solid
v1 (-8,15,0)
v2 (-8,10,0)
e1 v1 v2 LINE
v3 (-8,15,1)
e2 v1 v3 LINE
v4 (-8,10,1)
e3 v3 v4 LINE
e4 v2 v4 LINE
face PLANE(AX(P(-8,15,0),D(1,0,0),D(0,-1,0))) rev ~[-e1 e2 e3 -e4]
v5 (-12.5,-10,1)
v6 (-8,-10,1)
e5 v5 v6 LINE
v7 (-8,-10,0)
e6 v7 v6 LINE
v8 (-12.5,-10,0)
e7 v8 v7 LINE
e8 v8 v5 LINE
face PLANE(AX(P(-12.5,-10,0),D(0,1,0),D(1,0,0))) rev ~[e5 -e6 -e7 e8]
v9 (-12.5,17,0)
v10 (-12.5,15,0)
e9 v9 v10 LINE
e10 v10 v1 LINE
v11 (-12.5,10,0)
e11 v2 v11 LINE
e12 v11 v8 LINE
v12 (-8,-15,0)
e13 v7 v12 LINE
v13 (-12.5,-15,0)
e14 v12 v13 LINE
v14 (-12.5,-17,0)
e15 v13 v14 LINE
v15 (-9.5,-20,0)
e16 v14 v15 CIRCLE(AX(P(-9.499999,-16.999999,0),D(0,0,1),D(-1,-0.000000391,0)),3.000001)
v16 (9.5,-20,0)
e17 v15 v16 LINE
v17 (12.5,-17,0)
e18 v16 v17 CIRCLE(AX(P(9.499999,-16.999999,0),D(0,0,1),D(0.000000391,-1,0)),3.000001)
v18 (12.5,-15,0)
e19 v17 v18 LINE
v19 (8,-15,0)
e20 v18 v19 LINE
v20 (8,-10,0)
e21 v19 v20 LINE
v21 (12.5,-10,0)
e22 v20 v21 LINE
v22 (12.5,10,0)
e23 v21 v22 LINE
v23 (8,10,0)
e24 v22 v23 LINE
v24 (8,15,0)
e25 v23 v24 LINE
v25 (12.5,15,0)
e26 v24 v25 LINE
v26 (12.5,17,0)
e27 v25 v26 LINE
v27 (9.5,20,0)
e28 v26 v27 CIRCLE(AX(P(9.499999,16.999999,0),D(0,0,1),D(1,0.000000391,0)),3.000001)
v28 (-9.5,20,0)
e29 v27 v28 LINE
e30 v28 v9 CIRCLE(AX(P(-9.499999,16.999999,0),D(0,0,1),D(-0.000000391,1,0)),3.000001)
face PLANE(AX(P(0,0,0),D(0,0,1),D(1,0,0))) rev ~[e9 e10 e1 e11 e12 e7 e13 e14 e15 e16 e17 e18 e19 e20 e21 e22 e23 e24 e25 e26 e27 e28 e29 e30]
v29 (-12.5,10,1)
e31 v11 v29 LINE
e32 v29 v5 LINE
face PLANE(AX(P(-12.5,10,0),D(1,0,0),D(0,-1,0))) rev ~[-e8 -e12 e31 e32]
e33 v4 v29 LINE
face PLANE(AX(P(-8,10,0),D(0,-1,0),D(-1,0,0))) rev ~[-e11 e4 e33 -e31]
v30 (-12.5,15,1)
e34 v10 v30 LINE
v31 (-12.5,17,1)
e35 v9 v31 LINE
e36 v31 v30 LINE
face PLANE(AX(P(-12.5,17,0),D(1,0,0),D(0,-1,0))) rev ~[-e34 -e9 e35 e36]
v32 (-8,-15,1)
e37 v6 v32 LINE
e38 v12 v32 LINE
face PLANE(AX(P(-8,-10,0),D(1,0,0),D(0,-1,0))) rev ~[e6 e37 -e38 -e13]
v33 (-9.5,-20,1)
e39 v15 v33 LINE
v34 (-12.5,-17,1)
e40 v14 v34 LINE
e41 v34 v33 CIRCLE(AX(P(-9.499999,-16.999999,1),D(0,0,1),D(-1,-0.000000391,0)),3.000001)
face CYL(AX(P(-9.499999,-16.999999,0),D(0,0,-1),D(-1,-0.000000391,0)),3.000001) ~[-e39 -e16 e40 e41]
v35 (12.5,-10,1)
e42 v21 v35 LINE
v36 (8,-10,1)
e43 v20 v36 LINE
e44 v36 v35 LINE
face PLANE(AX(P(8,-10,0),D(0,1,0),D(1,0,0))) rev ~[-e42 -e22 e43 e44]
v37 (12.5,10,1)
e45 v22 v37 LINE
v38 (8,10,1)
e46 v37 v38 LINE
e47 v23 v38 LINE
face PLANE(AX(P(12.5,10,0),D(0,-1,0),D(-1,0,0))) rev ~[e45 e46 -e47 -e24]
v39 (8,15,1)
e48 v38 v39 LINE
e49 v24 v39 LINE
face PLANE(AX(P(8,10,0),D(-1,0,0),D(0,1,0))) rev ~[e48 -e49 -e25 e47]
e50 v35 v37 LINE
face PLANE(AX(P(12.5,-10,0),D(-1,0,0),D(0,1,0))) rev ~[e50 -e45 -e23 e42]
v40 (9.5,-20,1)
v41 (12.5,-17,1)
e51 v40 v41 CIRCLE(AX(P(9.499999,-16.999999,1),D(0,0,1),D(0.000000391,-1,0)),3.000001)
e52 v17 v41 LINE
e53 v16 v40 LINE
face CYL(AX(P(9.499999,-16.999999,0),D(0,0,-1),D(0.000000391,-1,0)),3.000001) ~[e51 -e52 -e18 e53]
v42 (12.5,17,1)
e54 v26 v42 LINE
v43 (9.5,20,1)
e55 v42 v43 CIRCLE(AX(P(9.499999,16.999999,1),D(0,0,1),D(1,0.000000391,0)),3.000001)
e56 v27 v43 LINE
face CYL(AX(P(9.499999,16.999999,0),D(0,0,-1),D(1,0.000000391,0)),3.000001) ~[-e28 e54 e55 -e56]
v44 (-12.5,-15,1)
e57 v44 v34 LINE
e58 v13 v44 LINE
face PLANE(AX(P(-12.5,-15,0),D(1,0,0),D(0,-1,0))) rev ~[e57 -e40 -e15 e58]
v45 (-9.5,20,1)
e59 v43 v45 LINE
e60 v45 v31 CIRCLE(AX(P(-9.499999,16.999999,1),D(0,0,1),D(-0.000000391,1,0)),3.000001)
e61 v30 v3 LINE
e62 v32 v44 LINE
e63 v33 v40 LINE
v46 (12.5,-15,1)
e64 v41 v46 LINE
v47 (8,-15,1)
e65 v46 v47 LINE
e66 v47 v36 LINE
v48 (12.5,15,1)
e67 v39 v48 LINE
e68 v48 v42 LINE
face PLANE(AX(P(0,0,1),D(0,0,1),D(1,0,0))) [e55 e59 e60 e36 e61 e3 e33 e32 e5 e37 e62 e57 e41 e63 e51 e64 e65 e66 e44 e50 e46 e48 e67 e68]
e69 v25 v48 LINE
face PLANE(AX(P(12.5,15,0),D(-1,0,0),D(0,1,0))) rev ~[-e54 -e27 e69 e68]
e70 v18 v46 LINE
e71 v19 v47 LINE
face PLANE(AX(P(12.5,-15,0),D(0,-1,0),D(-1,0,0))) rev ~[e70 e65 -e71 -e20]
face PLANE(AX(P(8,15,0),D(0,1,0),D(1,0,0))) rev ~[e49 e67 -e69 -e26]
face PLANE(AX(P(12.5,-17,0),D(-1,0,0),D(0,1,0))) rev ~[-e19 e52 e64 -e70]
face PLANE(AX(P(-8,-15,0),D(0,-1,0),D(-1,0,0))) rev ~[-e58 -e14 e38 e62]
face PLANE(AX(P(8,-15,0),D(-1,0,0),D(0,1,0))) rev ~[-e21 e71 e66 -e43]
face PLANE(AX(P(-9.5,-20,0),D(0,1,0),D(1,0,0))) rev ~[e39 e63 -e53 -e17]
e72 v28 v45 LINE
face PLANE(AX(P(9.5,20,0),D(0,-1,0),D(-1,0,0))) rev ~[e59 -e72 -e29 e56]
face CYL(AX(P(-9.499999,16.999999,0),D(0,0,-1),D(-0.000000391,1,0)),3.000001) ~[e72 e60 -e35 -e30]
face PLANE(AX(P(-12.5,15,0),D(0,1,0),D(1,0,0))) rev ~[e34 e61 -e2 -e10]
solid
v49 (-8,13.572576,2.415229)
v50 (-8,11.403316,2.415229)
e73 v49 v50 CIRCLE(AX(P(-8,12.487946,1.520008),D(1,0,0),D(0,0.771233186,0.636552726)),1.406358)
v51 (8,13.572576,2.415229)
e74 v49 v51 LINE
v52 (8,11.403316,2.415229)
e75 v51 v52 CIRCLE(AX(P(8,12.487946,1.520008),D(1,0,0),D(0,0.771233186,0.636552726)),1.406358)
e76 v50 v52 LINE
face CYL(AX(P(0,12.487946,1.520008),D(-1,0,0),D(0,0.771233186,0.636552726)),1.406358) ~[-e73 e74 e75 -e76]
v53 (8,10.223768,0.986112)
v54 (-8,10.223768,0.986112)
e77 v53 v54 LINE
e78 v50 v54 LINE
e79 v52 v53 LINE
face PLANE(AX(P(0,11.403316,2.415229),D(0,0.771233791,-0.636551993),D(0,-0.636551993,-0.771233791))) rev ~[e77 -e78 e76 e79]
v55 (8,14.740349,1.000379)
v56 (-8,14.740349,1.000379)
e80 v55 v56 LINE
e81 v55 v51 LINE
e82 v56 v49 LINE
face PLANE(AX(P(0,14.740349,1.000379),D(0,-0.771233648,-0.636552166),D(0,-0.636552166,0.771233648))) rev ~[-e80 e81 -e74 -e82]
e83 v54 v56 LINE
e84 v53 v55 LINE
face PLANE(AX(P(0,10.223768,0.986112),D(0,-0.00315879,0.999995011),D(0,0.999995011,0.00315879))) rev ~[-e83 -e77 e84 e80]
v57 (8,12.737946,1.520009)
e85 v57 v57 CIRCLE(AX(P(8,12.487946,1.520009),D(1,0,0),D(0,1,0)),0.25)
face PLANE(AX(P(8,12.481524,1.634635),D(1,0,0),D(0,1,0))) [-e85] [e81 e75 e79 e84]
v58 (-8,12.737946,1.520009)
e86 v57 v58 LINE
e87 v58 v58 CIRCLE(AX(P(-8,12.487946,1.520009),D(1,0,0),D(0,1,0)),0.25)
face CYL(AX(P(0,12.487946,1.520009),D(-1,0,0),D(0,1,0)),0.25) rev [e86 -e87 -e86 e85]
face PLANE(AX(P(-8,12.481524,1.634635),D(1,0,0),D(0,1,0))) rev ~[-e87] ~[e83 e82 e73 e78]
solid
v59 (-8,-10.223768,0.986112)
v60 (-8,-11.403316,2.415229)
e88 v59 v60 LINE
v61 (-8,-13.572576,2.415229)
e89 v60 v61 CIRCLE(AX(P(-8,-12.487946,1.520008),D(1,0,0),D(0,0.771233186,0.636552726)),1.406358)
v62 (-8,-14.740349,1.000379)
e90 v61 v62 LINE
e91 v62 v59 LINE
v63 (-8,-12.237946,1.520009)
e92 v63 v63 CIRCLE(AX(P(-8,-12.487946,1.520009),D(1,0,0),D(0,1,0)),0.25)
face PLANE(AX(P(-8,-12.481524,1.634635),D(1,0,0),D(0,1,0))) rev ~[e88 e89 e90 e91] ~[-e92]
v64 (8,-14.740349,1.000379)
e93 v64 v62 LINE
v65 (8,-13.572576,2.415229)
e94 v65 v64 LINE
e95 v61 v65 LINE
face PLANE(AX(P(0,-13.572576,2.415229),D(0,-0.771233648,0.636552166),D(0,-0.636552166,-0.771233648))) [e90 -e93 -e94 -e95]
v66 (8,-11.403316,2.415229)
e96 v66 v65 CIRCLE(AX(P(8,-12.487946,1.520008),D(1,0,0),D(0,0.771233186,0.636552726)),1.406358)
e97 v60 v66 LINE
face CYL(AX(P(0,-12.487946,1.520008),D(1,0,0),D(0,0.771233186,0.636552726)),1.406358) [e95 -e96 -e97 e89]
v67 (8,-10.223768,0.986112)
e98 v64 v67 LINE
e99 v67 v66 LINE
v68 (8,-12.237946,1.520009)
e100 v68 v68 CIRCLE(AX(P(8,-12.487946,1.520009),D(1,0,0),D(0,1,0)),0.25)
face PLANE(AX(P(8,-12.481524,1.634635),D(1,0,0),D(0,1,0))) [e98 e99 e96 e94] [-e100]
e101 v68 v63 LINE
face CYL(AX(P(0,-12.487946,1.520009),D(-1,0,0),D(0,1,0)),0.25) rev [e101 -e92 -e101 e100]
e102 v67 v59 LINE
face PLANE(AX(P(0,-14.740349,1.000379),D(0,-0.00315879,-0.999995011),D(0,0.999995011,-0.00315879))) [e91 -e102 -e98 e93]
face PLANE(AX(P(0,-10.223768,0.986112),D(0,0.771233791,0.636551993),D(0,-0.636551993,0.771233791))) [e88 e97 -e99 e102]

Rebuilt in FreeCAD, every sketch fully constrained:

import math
import FreeCAD as App
import Part
import Sketcher

doc = App.newDocument("Part")
body = doc.addObject("PartDesign::Body", "Body")

sketch1 = body.newObject("Sketcher::SketchObject", "Sketch")
sketch1.AttachmentSupport = (doc.getObject("XY_Plane"), [""])
sketch1.MapMode = "FlatFace"
sketch1.addGeometry(Part.ArcOfCircle(Part.Circle(App.Vector(9.5, 17, 0), App.Vector(0, 0, 1), 3), math.radians(0), math.radians(90)), False)
sketch1.addGeometry(Part.LineSegment(App.Vector(9.5, 20, 0), App.Vector(-9.5, 20, 0)), False)
sketch1.addGeometry(Part.ArcOfCircle(Part.Circle(App.Vector(-9.5, 17, 0), App.Vector(0, 0, 1), 3), math.radians(90), math.radians(180)), False)
sketch1.addGeometry(Part.LineSegment(App.Vector(-12.5, 17, 0), App.Vector(-12.5, 15, 0)), False)
sketch1.addGeometry(Part.LineSegment(App.Vector(-12.5, 15, 0), App.Vector(-8, 15, 0)), False)
sketch1.addGeometry(Part.LineSegment(App.Vector(-8, 15, 0), App.Vector(-8, 10, 0)), False)
sketch1.addGeometry(Part.LineSegment(App.Vector(-8, 10, 0), App.Vector(-12.5, 10, 0)), False)
sketch1.addGeometry(Part.LineSegment(App.Vector(-12.5, 10, 0), App.Vector(-12.5, -10, 0)), False)
sketch1.addGeometry(Part.LineSegment(App.Vector(-12.5, -10, 0), App.Vector(-8, -10, 0)), False)
sketch1.addGeometry(Part.LineSegment(App.Vector(-8, -10, 0), App.Vector(-8, -15, 0)), False)
sketch1.addGeometry(Part.LineSegment(App.Vector(-8, -15, 0), App.Vector(-12.5, -15, 0)), False)
sketch1.addGeometry(Part.LineSegment(App.Vector(-12.5, -15, 0), App.Vector(-12.5, -17, 0)), False)
sketch1.addGeometry(Part.ArcOfCircle(Part.Circle(App.Vector(-9.5, -17, 0), App.Vector(0, 0, 1), 3), math.radians(-180), math.radians(-90)), False)
sketch1.addGeometry(Part.LineSegment(App.Vector(-9.5, -20, 0), App.Vector(9.5, -20, 0)), False)
sketch1.addGeometry(Part.ArcOfCircle(Part.Circle(App.Vector(9.5, -17, 0), App.Vector(0, 0, 1), 3), math.radians(-90), math.radians(0)), False)
sketch1.addGeometry(Part.LineSegment(App.Vector(12.5, -17, 0), App.Vector(12.5, -15, 0)), False)
sketch1.addGeometry(Part.LineSegment(App.Vector(12.5, -15, 0), App.Vector(8, -15, 0)), False)
sketch1.addGeometry(Part.LineSegment(App.Vector(8, -15, 0), App.Vector(8, -10, 0)), False)
sketch1.addGeometry(Part.LineSegment(App.Vector(8, -10, 0), App.Vector(12.5, -10, 0)), False)
sketch1.addGeometry(Part.LineSegment(App.Vector(12.5, -10, 0), App.Vector(12.5, 10, 0)), False)
sketch1.addGeometry(Part.LineSegment(App.Vector(12.5, 10, 0), App.Vector(8, 10, 0)), False)
sketch1.addGeometry(Part.LineSegment(App.Vector(8, 10, 0), App.Vector(8, 15, 0)), False)
sketch1.addGeometry(Part.LineSegment(App.Vector(8, 15, 0), App.Vector(12.5, 15, 0)), False)
sketch1.addGeometry(Part.LineSegment(App.Vector(12.5, 15, 0), App.Vector(12.5, 17, 0)), False)
sketch1.addConstraint(Sketcher.Constraint("Tangent", 0, 2, 1, 1))
sketch1.addConstraint(Sketcher.Constraint("Tangent", 1, 2, 2, 1))
sketch1.addConstraint(Sketcher.Constraint("Tangent", 2, 2, 3, 1))
sketch1.addConstraint(Sketcher.Constraint("Coincident", 3, 2, 4, 1))
sketch1.addConstraint(Sketcher.Constraint("Coincident", 4, 2, 5, 1))
sketch1.addConstraint(Sketcher.Constraint("Coincident", 5, 2, 6, 1))
sketch1.addConstraint(Sketcher.Constraint("Coincident", 6, 2, 7, 1))
sketch1.addConstraint(Sketcher.Constraint("Coincident", 7, 2, 8, 1))
sketch1.addConstraint(Sketcher.Constraint("Coincident", 8, 2, 9, 1))
sketch1.addConstraint(Sketcher.Constraint("Coincident", 9, 2, 10, 1))
sketch1.addConstraint(Sketcher.Constraint("Coincident", 10, 2, 11, 1))
sketch1.addConstraint(Sketcher.Constraint("Tangent", 11, 2, 12, 1))
sketch1.addConstraint(Sketcher.Constraint("Tangent", 12, 2, 13, 1))
sketch1.addConstraint(Sketcher.Constraint("Tangent", 13, 2, 14, 1))
sketch1.addConstraint(Sketcher.Constraint("Tangent", 14, 2, 15, 1))
sketch1.addConstraint(Sketcher.Constraint("Coincident", 15, 2, 16, 1))
sketch1.addConstraint(Sketcher.Constraint("Coincident", 16, 2, 17, 1))
sketch1.addConstraint(Sketcher.Constraint("Coincident", 17, 2, 18, 1))
sketch1.addConstraint(Sketcher.Constraint("Coincident", 18, 2, 19, 1))
sketch1.addConstraint(Sketcher.Constraint("Coincident", 19, 2, 20, 1))
sketch1.addConstraint(Sketcher.Constraint("Coincident", 20, 2, 21, 1))
sketch1.addConstraint(Sketcher.Constraint("Coincident", 21, 2, 22, 1))
sketch1.addConstraint(Sketcher.Constraint("Coincident", 22, 2, 23, 1))
sketch1.addConstraint(Sketcher.Constraint("Tangent", 23, 2, 0, 1))
sketch1.addConstraint(Sketcher.Constraint("Horizontal", 1))
sketch1.addConstraint(Sketcher.Constraint("Vertical", 3))
sketch1.addConstraint(Sketcher.Constraint("Horizontal", 4))
sketch1.addConstraint(Sketcher.Constraint("Vertical", 5))
sketch1.addConstraint(Sketcher.Constraint("Horizontal", 6))
sketch1.addConstraint(Sketcher.Constraint("Vertical", 7))
sketch1.addConstraint(Sketcher.Constraint("Horizontal", 8))
sketch1.addConstraint(Sketcher.Constraint("Vertical", 9))
sketch1.addConstraint(Sketcher.Constraint("Horizontal", 10))
sketch1.addConstraint(Sketcher.Constraint("Vertical", 11))
sketch1.addConstraint(Sketcher.Constraint("Horizontal", 13))
sketch1.addConstraint(Sketcher.Constraint("Vertical", 15))
sketch1.addConstraint(Sketcher.Constraint("Horizontal", 16))
sketch1.addConstraint(Sketcher.Constraint("Vertical", 17))
sketch1.addConstraint(Sketcher.Constraint("Horizontal", 18))
sketch1.addConstraint(Sketcher.Constraint("Vertical", 19))
sketch1.addConstraint(Sketcher.Constraint("Horizontal", 20))
sketch1.addConstraint(Sketcher.Constraint("Vertical", 21))
sketch1.addConstraint(Sketcher.Constraint("Horizontal", 22))
sketch1.addConstraint(Sketcher.Constraint("Vertical", 23))
sketch1.addConstraint(Sketcher.Constraint("Equal", 0, 2))
sketch1.addConstraint(Sketcher.Constraint("Equal", 2, 12))
sketch1.addConstraint(Sketcher.Constraint("Equal", 12, 14))
sketch1.addConstraint(Sketcher.Constraint("Symmetric", 0, 3, 12, 3, -1, 1))
sketch1.addConstraint(Sketcher.Constraint("Symmetric", 3, 2, 15, 2, -1, 1))
sketch1.addConstraint(Sketcher.Constraint("Symmetric", 5, 2, 17, 2, -1, 1))
sketch1.addConstraint(Sketcher.Constraint("Symmetric", 7, 2, 19, 2, -1, 1))
sketch1.addConstraint(Sketcher.Constraint("Symmetric", 9, 2, 21, 2, -1, 1))
sketch1.addConstraint(Sketcher.Constraint("Symmetric", 10, 2, 15, 2, -2))
sketch1.addConstraint(Sketcher.Constraint("Symmetric", 8, 2, 17, 2, -2))
sketch1.addConstraint(Sketcher.Constraint("Vertical", 3, 2, 6, 2))
sketch1.addConstraint(Sketcher.Constraint("Radius", 0, 3.000001))
sketch1.addConstraint(Sketcher.Constraint("DistanceX", 1, 2, 1, 1, 19.0))
sketch1.addConstraint(Sketcher.Constraint("DistanceY", 3, 2, 3, 1, 2.0))
sketch1.addConstraint(Sketcher.Constraint("DistanceY", 5, 2, 5, 1, 5.0))
sketch1.addConstraint(Sketcher.Constraint("DistanceY", 7, 2, 7, 1, 20.0))
sketch1.addConstraint(Sketcher.Constraint("DistanceX", 4, 1, 4, 2, 4.5))
pad1 = body.newObject("PartDesign::Pad", "Pad")
pad1.Profile = sketch1
pad1.Length = 1
body2 = doc.addObject("PartDesign::Body", "Body001")
body2.AllowCompound = True

sketch2 = body2.newObject("Sketcher::SketchObject", "Sketch001")
sketch2.AttachmentSupport = (doc.getObject("YZ_Plane001"), [""])
sketch2.MapMode = "FlatFace"
sketch2.addGeometry(Part.LineSegment(App.Vector(14.74, 1, 0), App.Vector(13.57, 2.42, 0)), False)
sketch2.addGeometry(Part.ArcOfCircle(Part.Circle(App.Vector(12.49, 1.52, 0), App.Vector(0, 0, 1), 1.41), math.radians(40), math.radians(140)), False)
sketch2.addGeometry(Part.LineSegment(App.Vector(11.4, 2.42, 0), App.Vector(10.22, 0.99, 0)), False)
sketch2.addGeometry(Part.LineSegment(App.Vector(10.22, 0.99, 0), App.Vector(14.74, 1, 0)), False)
sketch2.addGeometry(Part.Circle(App.Vector(12.49, 1.52, 0), App.Vector(0, 0, 1), 0.25), False)
sketch2.addGeometry(Part.LineSegment(App.Vector(-10.22, 0.99, 0), App.Vector(-11.4, 2.42, 0)), False)
sketch2.addGeometry(Part.ArcOfCircle(Part.Circle(App.Vector(-12.49, 1.52, 0), App.Vector(0, 0, 1), 1.41), math.radians(40), math.radians(140)), False)
sketch2.addGeometry(Part.LineSegment(App.Vector(-13.57, 2.42, 0), App.Vector(-14.74, 1, 0)), False)
sketch2.addGeometry(Part.LineSegment(App.Vector(-14.74, 1, 0), App.Vector(-10.22, 0.99, 0)), False)
sketch2.addGeometry(Part.Circle(App.Vector(-12.49, 1.52, 0), App.Vector(0, 0, 1), 0.25), False)
sketch2.addConstraint(Sketcher.Constraint("Tangent", 0, 2, 1, 1))
sketch2.addConstraint(Sketcher.Constraint("Tangent", 1, 2, 2, 1))
sketch2.addConstraint(Sketcher.Constraint("Coincident", 2, 2, 3, 1))
sketch2.addConstraint(Sketcher.Constraint("Coincident", 3, 2, 0, 1))
sketch2.addConstraint(Sketcher.Constraint("Tangent", 5, 2, 6, 1))
sketch2.addConstraint(Sketcher.Constraint("Tangent", 6, 2, 7, 1))
sketch2.addConstraint(Sketcher.Constraint("Coincident", 7, 2, 8, 1))
sketch2.addConstraint(Sketcher.Constraint("Coincident", 8, 2, 5, 1))
sketch2.addConstraint(Sketcher.Constraint("Coincident", 4, 3, 1, 3))
sketch2.addConstraint(Sketcher.Constraint("Coincident", 9, 3, 6, 3))
sketch2.addConstraint(Sketcher.Constraint("Equal", 1, 6))
sketch2.addConstraint(Sketcher.Constraint("Equal", 4, 9))
sketch2.addConstraint(Sketcher.Constraint("Symmetric", 1, 3, 6, 3, -2))
sketch2.addConstraint(Sketcher.Constraint("Symmetric", 3, 2, 7, 2, -2))
sketch2.addConstraint(Sketcher.Constraint("Symmetric", 2, 2, 8, 2, -2))
sketch2.addConstraint(Sketcher.Constraint("Parallel", 0, 5))
sketch2.addConstraint(Sketcher.Constraint("Diameter", 4, 0.5))
sketch2.addConstraint(Sketcher.Constraint("Radius", 1, 1.406358))
sketch2.addConstraint(Sketcher.Constraint("Distance", 0, 1.834528))
sketch2.addConstraint(Sketcher.Constraint("DistanceY", -1, 1, 4, 3, 1.520009))
sketch2.addConstraint(Sketcher.Constraint("DistanceY", -1, 1, 0, 2, 2.415229))
sketch2.addConstraint(Sketcher.Constraint("DistanceY", -1, 1, 2, 2, 0.986112))
sketch2.addConstraint(Sketcher.Constraint("DistanceX", -1, 1, 3, 2, 14.740349))
pad2 = body2.newObject("PartDesign::Pad", "Pad001")
pad2.Profile = sketch2
pad2.Length = 16
pad2.Midplane = True

doc.recompute()
